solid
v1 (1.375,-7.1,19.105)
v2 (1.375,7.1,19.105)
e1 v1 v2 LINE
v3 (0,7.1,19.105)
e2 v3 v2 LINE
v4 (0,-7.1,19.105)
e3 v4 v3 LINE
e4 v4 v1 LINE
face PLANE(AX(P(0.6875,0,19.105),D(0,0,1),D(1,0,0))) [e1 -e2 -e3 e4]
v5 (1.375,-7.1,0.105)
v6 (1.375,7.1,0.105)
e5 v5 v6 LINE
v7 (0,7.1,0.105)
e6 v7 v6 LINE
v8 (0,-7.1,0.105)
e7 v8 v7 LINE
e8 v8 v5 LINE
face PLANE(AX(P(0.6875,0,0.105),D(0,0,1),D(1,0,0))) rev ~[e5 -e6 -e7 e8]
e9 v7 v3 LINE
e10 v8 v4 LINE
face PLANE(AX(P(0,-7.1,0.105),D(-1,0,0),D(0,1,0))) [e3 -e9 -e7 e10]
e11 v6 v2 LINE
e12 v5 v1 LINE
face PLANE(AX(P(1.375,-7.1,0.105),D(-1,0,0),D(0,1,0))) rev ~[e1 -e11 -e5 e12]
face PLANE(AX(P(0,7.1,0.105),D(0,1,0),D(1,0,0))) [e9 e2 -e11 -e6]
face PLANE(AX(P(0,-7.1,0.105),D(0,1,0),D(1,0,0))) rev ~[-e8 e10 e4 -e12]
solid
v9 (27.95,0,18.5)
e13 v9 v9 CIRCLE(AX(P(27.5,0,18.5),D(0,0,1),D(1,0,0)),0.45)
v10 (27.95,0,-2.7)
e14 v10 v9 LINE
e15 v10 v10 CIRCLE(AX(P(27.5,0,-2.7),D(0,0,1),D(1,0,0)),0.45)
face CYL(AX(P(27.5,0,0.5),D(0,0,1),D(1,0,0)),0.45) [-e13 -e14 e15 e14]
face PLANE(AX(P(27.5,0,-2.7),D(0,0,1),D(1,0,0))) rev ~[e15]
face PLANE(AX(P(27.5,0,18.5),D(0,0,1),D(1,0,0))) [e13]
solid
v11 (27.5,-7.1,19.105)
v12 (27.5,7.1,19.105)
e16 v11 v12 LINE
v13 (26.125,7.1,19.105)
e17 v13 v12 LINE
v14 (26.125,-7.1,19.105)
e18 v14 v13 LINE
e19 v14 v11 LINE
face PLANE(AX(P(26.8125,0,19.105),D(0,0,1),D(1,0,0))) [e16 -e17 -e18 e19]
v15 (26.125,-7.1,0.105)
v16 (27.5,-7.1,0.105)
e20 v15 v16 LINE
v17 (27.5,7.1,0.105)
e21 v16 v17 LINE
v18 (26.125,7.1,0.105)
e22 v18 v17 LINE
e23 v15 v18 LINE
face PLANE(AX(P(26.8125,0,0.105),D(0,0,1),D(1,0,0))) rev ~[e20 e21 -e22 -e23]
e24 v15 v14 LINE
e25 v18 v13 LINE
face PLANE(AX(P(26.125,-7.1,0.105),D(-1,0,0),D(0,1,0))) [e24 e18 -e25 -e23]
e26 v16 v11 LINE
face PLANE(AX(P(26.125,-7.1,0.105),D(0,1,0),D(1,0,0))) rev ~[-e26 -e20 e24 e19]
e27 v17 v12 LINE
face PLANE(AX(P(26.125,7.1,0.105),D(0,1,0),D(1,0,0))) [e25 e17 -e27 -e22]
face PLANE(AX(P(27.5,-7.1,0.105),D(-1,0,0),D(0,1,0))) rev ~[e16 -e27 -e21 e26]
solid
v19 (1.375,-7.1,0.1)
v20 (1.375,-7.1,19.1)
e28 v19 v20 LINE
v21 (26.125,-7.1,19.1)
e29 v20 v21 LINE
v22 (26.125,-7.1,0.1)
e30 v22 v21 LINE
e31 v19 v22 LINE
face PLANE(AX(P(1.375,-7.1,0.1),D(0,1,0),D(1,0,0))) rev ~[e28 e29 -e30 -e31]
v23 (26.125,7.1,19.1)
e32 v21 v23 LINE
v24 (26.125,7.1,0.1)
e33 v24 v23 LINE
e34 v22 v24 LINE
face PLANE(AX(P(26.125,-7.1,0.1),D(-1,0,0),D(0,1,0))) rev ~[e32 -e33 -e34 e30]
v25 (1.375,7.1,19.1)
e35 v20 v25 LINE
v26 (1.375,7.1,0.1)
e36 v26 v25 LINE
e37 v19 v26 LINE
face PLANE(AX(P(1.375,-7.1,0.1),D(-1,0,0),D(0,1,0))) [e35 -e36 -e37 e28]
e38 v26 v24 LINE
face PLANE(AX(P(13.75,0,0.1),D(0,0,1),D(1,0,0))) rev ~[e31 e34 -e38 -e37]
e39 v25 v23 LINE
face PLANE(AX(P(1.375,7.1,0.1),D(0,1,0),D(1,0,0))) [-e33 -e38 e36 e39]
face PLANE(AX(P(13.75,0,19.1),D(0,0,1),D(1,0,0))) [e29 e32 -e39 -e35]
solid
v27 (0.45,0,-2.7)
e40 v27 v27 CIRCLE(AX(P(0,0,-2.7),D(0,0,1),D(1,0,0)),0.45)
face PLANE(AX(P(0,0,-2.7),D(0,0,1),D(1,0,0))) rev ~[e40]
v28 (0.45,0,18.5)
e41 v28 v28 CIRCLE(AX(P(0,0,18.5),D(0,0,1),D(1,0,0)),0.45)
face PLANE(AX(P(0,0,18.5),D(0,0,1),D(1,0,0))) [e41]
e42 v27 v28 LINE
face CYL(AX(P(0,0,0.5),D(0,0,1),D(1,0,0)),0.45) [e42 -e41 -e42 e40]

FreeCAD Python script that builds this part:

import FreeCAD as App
import Part
import Sketcher

doc = App.newDocument("Part")
body = doc.addObject("PartDesign::Body", "Body")

# Sketch on XY plane
sketch1 = body.newObject("Sketcher::SketchObject", "Sketch")
sketch1.AttachmentSupport = (doc.getObject("XY_Plane"), [""])
sketch1.MapMode = "FlatFace"
sketch1.AttachmentOffset = App.Placement(App.Vector(0, 0, 0.1), App.Rotation())
sketch1.addGeometry(Part.LineSegment(App.Vector(1, 7, 0), App.Vector(1, -7, 0)), False)
sketch1.addGeometry(Part.LineSegment(App.Vector(1, -7, 0), App.Vector(26, -7, 0)), False)
sketch1.addGeometry(Part.LineSegment(App.Vector(26, -7, 0), App.Vector(26, 7, 0)), False)
sketch1.addGeometry(Part.LineSegment(App.Vector(26, 7, 0), App.Vector(1, 7, 0)), False)
sketch1.addConstraint(Sketcher.Constraint("Coincident", 0, 2, 1, 1))
sketch1.addConstraint(Sketcher.Constraint("Coincident", 1, 2, 2, 1))
sketch1.addConstraint(Sketcher.Constraint("Coincident", 2, 2, 3, 1))
sketch1.addConstraint(Sketcher.Constraint("Coincident", 3, 2, 0, 1))
sketch1.addConstraint(Sketcher.Constraint("Vertical", 0))
sketch1.addConstraint(Sketcher.Constraint("Horizontal", 1))
sketch1.addConstraint(Sketcher.Constraint("Vertical", 2))
sketch1.addConstraint(Sketcher.Constraint("Horizontal", 3))
sketch1.addConstraint(Sketcher.Constraint("DistanceY", 0, 2, 0, 1, 14.2))
sketch1.addConstraint(Sketcher.Constraint("DistanceX", 1, 1, 1, 2, 24.75))
sketch1.addConstraint(Sketcher.Constraint("DistanceY", 0, 2, -1, 1, 7.1))
sketch1.addConstraint(Sketcher.Constraint("DistanceX", -1, 1, 0, 2, 1.375))
pad1 = body.newObject("PartDesign::Pad", "Pad")
pad1.Profile = sketch1
pad1.Length = 19
body2 = doc.addObject("PartDesign::Body", "Body001")
body2.AllowCompound = True

# Sketch on XY plane
sketch2 = body2.newObject("Sketcher::SketchObject", "Sketch001")
sketch2.AttachmentSupport = (doc.getObject("XY_Plane001"), [""])
sketch2.MapMode = "FlatFace"
sketch2.AttachmentOffset = App.Placement(App.Vector(0, 0, 0.5), App.Rotation())
sketch2.addGeometry(Part.Circle(App.Vector(0, 0, 0), App.Vector(0, 0, 1), 0.45), False)
sketch2.addGeometry(Part.Circle(App.Vector(27.5, 0, 0), App.Vector(0, 0, 1), 0.45), False)
sketch2.addConstraint(Sketcher.Constraint("Coincident", 0, 3, -1, 1))
sketch2.addConstraint(Sketcher.Constraint("Equal", 0, 1))
sketch2.addConstraint(Sketcher.Constraint("PointOnObject", 1, 3, -1))
sketch2.addConstraint(Sketcher.Constraint("Diameter", 0, 0.9))
sketch2.addConstraint(Sketcher.Constraint("DistanceX", -1, 1, 1, 3, 27.5))
pad2 = body2.newObject("PartDesign::Pad", "Pad001")
pad2.Profile = sketch2
pad2.Type = "TwoLengths"
pad2.Length = 18
pad2.Length2 = 3.2
body3 = doc.addObject("PartDesign::Body", "Body002")
body3.AllowCompound = True

# Sketch on XY plane
sketch3 = body3.newObject("Sketcher::SketchObject", "Sketch002")
sketch3.AttachmentSupport = (doc.getObject("XY_Plane002"), [""])
sketch3.MapMode = "FlatFace"
sketch3.AttachmentOffset = App.Placement(App.Vector(0, 0, 0.105), App.Rotation())
sketch3.addGeometry(Part.LineSegment(App.Vector(0, 7.1, 0), App.Vector(0, -7.1, 0)), False)
sketch3.addGeometry(Part.LineSegment(App.Vector(0, -7.1, 0), App.Vector(1.4, -7.1, 0)), False)
sketch3.addGeometry(Part.LineSegment(App.Vector(1.4, -7.1, 0), App.Vector(1.4, 7.1, 0)), False)
sketch3.addGeometry(Part.LineSegment(App.Vector(1.4, 7.1, 0), App.Vector(0, 7.1, 0)), False)
sketch3.addGeometry(Part.LineSegment(App.Vector(26.1, 7.1, 0), App.Vector(26.1, -7.1, 0)), False)
sketch3.addGeometry(Part.LineSegment(App.Vector(26.1, -7.1, 0), App.Vector(27.5, -7.1, 0)), False)
sketch3.addGeometry(Part.LineSegment(App.Vector(27.5, -7.1, 0), App.Vector(27.5, 7.1, 0)), False)
sketch3.addGeometry(Part.LineSegment(App.Vector(27.5, 7.1, 0), App.Vector(26.1, 7.1, 0)), False)
sketch3.addConstraint(Sketcher.Constraint("Coincident", 0, 2, 1, 1))
sketch3.addConstraint(Sketcher.Constraint("Coincident", 1, 2, 2, 1))
sketch3.addConstraint(Sketcher.Constraint("Coincident", 2, 2, 3, 1))
sketch3.addConstraint(Sketcher.Constraint("Coincident", 3, 2, 0, 1))
sketch3.addConstraint(Sketcher.Constraint("Coincident", 4, 2, 5, 1))
sketch3.addConstraint(Sketcher.Constraint("Coincident", 5, 2, 6, 1))
sketch3.addConstraint(Sketcher.Constraint("Coincident", 6, 2, 7, 1))
sketch3.addConstraint(Sketcher.Constraint("Coincident", 7, 2, 4, 1))
sketch3.addConstraint(Sketcher.Constraint("Vertical", 0))
sketch3.addConstraint(Sketcher.Constraint("Horizontal", 1))
sketch3.addConstraint(Sketcher.Constraint("Vertical", 2))
sketch3.addConstraint(Sketcher.Constraint("Horizontal", 3))
sketch3.addConstraint(Sketcher.Constraint("Vertical", 4))
sketch3.addConstraint(Sketcher.Constraint("Horizontal", 5))
sketch3.addConstraint(Sketcher.Constraint("Vertical", 6))
sketch3.addConstraint(Sketcher.Constraint("Horizontal", 7))
sketch3.addConstraint(Sketcher.Constraint("Symmetric", 0, 2, 3, 2, -1, 1))
sketch3.addConstraint(Sketcher.Constraint("Horizontal", 1, 2, 4, 2))
sketch3.addConstraint(Sketcher.Constraint("Horizontal", 3, 2, 6, 2))
sketch3.addConstraint(Sketcher.Constraint("Equal", 3, 5))
sketch3.addConstraint(Sketcher.Constraint("DistanceY", 0, 2, 0, 1, 14.2))
sketch3.addConstraint(Sketcher.Constraint("DistanceX", -1, 1, 5, 2, 27.5))
sketch3.addConstraint(Sketcher.Constraint("DistanceX", 1, 1, 1, 2, 1.375))
pad3 = body3.newObject("PartDesign::Pad", "Pad002")
pad3.Profile = sketch3
pad3.Length = 19

doc.recompute()
